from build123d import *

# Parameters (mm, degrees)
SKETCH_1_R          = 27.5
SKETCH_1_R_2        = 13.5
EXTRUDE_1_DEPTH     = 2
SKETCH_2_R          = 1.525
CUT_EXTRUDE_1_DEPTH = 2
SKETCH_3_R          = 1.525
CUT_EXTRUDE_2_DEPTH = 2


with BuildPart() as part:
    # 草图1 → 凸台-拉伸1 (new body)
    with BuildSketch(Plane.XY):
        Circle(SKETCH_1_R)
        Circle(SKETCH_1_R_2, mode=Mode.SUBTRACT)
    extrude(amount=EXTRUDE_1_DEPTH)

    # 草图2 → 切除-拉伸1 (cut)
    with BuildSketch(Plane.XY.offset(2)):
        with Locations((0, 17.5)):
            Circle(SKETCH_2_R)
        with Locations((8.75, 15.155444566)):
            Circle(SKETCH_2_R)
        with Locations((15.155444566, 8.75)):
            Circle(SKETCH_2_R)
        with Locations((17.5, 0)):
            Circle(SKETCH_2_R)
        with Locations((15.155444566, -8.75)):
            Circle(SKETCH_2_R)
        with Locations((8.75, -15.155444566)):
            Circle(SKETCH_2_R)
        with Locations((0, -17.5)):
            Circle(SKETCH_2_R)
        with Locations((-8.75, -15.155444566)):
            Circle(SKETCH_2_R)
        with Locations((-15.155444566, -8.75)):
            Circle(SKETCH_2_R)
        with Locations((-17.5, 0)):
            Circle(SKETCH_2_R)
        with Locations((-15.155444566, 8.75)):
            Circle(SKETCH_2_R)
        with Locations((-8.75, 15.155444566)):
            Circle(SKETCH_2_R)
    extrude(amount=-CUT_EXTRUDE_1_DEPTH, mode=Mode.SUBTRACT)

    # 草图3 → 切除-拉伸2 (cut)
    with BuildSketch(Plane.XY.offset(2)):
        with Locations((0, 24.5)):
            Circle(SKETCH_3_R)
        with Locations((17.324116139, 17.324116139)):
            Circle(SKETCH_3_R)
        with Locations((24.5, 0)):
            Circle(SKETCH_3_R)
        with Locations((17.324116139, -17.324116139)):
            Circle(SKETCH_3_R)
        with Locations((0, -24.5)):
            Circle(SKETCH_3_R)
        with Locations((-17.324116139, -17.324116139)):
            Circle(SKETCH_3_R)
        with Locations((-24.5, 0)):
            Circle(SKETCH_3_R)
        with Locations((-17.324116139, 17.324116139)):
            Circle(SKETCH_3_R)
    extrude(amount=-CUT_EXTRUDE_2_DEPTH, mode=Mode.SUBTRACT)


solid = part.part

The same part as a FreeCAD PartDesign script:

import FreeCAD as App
import Part
import Sketcher
from FreeCAD import Vector

doc = App.newDocument("Part")
body = doc.addObject("PartDesign::Body", "Body")

# Sketch on XY plane
sketch1 = body.newObject("Sketcher::SketchObject", "Sketch")
sketch1.AttachmentSupport = (doc.getObject("XY_Plane"), [""])
sketch1.MapMode = "FlatFace"
sketch1.addGeometry([
    Part.Circle(Vector(0, 0, 0), Vector(0, 0, 1), 28),
    Part.Circle(Vector(0, 0, 0), Vector(0, 0, 1), 14),
], False)
sketch1.addConstraint([
    Sketcher.Constraint("Coincident", 0, 3, -1, 1),
    Sketcher.Constraint("Coincident", 1, 3, -1, 1),
    Sketcher.Constraint("Diameter", 0, 55.0),
    Sketcher.Constraint("Diameter", 1, 27.0),
])
pad1 = body.newObject("PartDesign::Pad", "Pad")
pad1.Profile = sketch1
pad1.Length = 2

# Sketch on XY plane
sketch2 = body.newObject("Sketcher::SketchObject", "Sketch001")
sketch2.AttachmentSupport = (doc.getObject("XY_Plane"), [""])
sketch2.MapMode = "FlatFace"
sketch2.AttachmentOffset = App.Placement(Vector(0, 0, 2), App.Rotation())
sketch2.addGeometry([
    Part.Circle(Vector(0, 17.5, 0), Vector(0, 0, 1), 1.5),  # 0
    Part.Circle(Vector(8.8, 15.2, 0), Vector(0, 0, 1), 1.5),  # 1
    Part.Circle(Vector(15.2, 8.8, 0), Vector(0, 0, 1), 1.5),  # 2
    Part.Circle(Vector(17.5, 0, 0), Vector(0, 0, 1), 1.5),  # 3
    Part.Circle(Vector(15.2, -8.8, 0), Vector(0, 0, 1), 1.5),  # 4
    Part.Circle(Vector(8.8, -15.2, 0), Vector(0, 0, 1), 1.5),  # 5
    Part.Circle(Vector(0, -17.5, 0), Vector(0, 0, 1), 1.5),  # 6
    Part.Circle(Vector(-8.8, -15.2, 0), Vector(0, 0, 1), 1.5),  # 7
    Part.Circle(Vector(-15.2, -8.8, 0), Vector(0, 0, 1), 1.5),  # 8
    Part.Circle(Vector(-17.5, 0, 0), Vector(0, 0, 1), 1.5),  # 9
    Part.Circle(Vector(-15.2, 8.8, 0), Vector(0, 0, 1), 1.5),  # 10
    Part.Circle(Vector(-8.8, 15.2, 0), Vector(0, 0, 1), 1.5),  # 11
], False)
sketch2.addConstraint([
    Sketcher.Constraint("Equal", 0, 1),
    Sketcher.Constraint("Equal", 1, 2),
    Sketcher.Constraint("Equal", 2, 3),
    Sketcher.Constraint("Equal", 3, 4),
    Sketcher.Constraint("Equal", 4, 5),
    Sketcher.Constraint("Equal", 5, 6),
    Sketcher.Constraint("Equal", 6, 7),
    Sketcher.Constraint("Equal", 7, 8),
    Sketcher.Constraint("Equal", 8, 9),
    Sketcher.Constraint("Equal", 9, 10),
    Sketcher.Constraint("Equal", 10, 11),
    Sketcher.Constraint("Symmetric", 0, 3, 6, 3, -1, 1),
    Sketcher.Constraint("Symmetric", 1, 3, 7, 3, -1, 1),
    Sketcher.Constraint("Symmetric", 2, 3, 8, 3, -1, 1),
    Sketcher.Constraint("Symmetric", 3, 3, 9, 3, -1, 1),
    Sketcher.Constraint("Symmetric", 4, 3, 10, 3, -1, 1),
    Sketcher.Constraint("Symmetric", 5, 3, 11, 3, -1, 1),
    Sketcher.Constraint("Symmetric", 5, 3, 7, 3, -2),
    Sketcher.Constraint("Symmetric", 4, 3, 8, 3, -2),
    Sketcher.Constraint("PointOnObject", 0, 3, -2),
    Sketcher.Constraint("PointOnObject", 3, 3, -1),
    Sketcher.Constraint("Diameter", 0, 3.05),
    Sketcher.Constraint("DistanceY", -1, 1, 0, 3, 17.5),
    Sketcher.Constraint("DistanceX", -1, 1, 3, 3, 17.5),
    Sketcher.Constraint("DistanceY", 4, 3, 2, 3, 17.5),
    Sketcher.Constraint("DistanceX", 7, 3, 5, 3, 17.5),
    Sketcher.Constraint("DistanceY", 5, 3, 1, 3, 30.310889),
    Sketcher.Constraint("DistanceX", 8, 3, 4, 3, 30.310889),
])
pocket1 = body.newObject("PartDesign::Pocket", "Pocket")
pocket1.Profile = sketch2
pocket1.Length = 2

# Sketch on XY plane
sketch3 = body.newObject("Sketcher::SketchObject", "Sketch002")
sketch3.AttachmentSupport = (doc.getObject("XY_Plane"), [""])
sketch3.MapMode = "FlatFace"
sketch3.AttachmentOffset = App.Placement(Vector(0, 0, 2), App.Rotation())
sketch3.addGeometry([
    Part.Circle(Vector(0, 24.5, 0), Vector(0, 0, 1), 1.5),  # 0
    Part.Circle(Vector(17.3, 17.3, 0), Vector(0, 0, 1), 1.5),  # 1
    Part.Circle(Vector(24.5, 0, 0), Vector(0, 0, 1), 1.5),  # 2
    Part.Circle(Vector(17.3, -17.3, 0), Vector(0, 0, 1), 1.5),  # 3
    Part.Circle(Vector(0, -24.5, 0), Vector(0, 0, 1), 1.5),  # 4
    Part.Circle(Vector(-17.3, -17.3, 0), Vector(0, 0, 1), 1.5),  # 5
    Part.Circle(Vector(-24.5, 0, 0), Vector(0, 0, 1), 1.5),  # 6
    Part.Circle(Vector(-17.3, 17.3, 0), Vector(0, 0, 1), 1.5),  # 7
], False)
sketch3.addConstraint([
    Sketcher.Constraint("Equal", 0, 1),
    Sketcher.Constraint("Equal", 1, 2),
    Sketcher.Constraint("Equal", 2, 3),
    Sketcher.Constraint("Equal", 3, 4),
    Sketcher.Constraint("Equal", 4, 5),
    Sketcher.Constraint("Equal", 5, 6),
    Sketcher.Constraint("Equal", 6, 7),
    Sketcher.Constraint("Symmetric", 0, 3, 4, 3, -1, 1),
    Sketcher.Constraint("Symmetric", 1, 3, 5, 3, -1, 1),
    Sketcher.Constraint("Symmetric", 2, 3, 6, 3, -1, 1),
    Sketcher.Constraint("Symmetric", 3, 3, 7, 3, -1, 1),
    Sketcher.Constraint("Symmetric", 3, 3, 5, 3, -2),
    Sketcher.Constraint("PointOnObject", 0, 3, -2),
    Sketcher.Constraint("PointOnObject", 2, 3, -1),
    Sketcher.Constraint("Diameter", 0, 3.05),
    Sketcher.Constraint("DistanceY", 4, 3, 0, 3, 49.0),
    Sketcher.Constraint("DistanceX", -1, 1, 2, 3, 24.5),
    Sketcher.Constraint("DistanceX", -1, 1, 1, 3, 17.324116),
    Sketcher.Constraint("DistanceY", -1, 1, 1, 3, 17.324116),
])
pocket2 = body.newObject("PartDesign::Pocket", "Pocket001")
pocket2.Profile = sketch3
pocket2.Length = 2

doc.recompute()
